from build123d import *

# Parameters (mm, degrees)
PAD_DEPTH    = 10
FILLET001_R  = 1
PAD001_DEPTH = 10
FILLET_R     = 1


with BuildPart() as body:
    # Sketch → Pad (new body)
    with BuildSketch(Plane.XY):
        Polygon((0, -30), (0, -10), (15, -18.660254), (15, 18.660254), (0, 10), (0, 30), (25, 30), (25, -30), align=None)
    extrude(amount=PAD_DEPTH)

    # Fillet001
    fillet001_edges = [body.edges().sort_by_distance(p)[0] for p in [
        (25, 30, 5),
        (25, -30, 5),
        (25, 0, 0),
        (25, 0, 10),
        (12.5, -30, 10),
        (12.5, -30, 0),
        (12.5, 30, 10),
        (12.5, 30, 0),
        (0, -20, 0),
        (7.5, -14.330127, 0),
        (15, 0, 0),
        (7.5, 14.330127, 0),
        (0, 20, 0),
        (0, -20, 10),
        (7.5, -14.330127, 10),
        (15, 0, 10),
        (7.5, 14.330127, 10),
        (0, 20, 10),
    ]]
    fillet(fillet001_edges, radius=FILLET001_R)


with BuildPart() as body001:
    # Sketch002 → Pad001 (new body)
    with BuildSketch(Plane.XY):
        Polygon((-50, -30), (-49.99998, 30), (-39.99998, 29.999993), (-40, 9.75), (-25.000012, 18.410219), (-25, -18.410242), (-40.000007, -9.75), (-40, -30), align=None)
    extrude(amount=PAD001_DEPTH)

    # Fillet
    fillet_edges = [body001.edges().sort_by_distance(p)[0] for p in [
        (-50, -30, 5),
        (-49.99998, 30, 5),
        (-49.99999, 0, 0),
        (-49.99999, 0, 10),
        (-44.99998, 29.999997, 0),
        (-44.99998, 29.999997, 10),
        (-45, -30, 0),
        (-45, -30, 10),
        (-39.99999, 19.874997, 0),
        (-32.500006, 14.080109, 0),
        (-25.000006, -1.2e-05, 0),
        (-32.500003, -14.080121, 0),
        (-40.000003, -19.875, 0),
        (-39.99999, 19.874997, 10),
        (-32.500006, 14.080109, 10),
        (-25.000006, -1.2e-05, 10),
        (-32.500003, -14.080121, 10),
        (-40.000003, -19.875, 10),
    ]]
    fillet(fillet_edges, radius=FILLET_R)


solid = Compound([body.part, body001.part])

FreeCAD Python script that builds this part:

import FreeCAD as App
import Part
import Sketcher

V = App.Vector
Q = App.Units.Quantity


def edges_at(feature, points):
    """Names of the edges that pass closest to the given points."""
    edges = feature.Shape.Edges
    near = lambda p: min(range(len(edges)), key=lambda i: edges[i].distToShape(Part.Vertex(*p))[0])
    return sorted({f"Edge{near(p) + 1}" for p in points})


def add_polygon(sketch, points):
    """Adds a closed chain of lines whose ends are joined by coincident constraints."""
    first, n = sketch.GeometryCount, len(points)
    for a, b in zip(points, points[1:] + points[:1]):
        sketch.addGeometry(Part.LineSegment(App.Vector(*a, 0), App.Vector(*b, 0)), False)
    for i in range(n):
        sketch.addConstraint(Sketcher.Constraint("Coincident", first + i, 2, first + (i + 1) % n, 1))

doc = App.newDocument("Part")
body = doc.addObject("PartDesign::Body", "Body")

# Sketch on XY plane
sketch1 = body.newObject("Sketcher::SketchObject", "Sketch")
sketch1.AttachmentSupport = (doc.getObject("XY_Plane"), [""])
sketch1.MapMode = "FlatFace"
add_polygon(sketch1, [(0, -10), (0, -30), (25, -30), (25, 30), (0, 30), (0, 10), (15, 19), (15, -19)])  # lines 0-7
sketch1.addConstraint([
    Sketcher.Constraint("Vertical", 0),
    Sketcher.Constraint("Horizontal", 1),
    Sketcher.Constraint("Vertical", 2),
    Sketcher.Constraint("Horizontal", 3),
    Sketcher.Constraint("Vertical", 4),
    Sketcher.Constraint("Vertical", 6),
    Sketcher.Constraint("Symmetric", 0, 2, 3, 2, -1, 1),
    Sketcher.Constraint("Symmetric", 4, 2, 7, 2, -1),
    Sketcher.Constraint("Equal", 5, 7),
    Sketcher.Constraint("DistanceX", 1, 1, 1, 2, 25.0),
    Sketcher.Constraint("DistanceY", 0, 2, 0, 1, 20.0),
    Sketcher.Constraint("DistanceY", 2, 1, 2, 2, 60.0),
    Sketcher.Constraint("Angle", 5, Q("30 deg")),
    Sketcher.Constraint("DistanceX", -1, 1, 5, 2, 15.0),
])
pad1 = body.newObject("PartDesign::Pad", "Pad")
pad1.Profile = sketch1
pad1.Length = 10
doc.recompute()

fillet = body.newObject("PartDesign::Fillet", "Fillet")
fillet.Base = (pad1, edges_at(pad1, [
    (25, 30, 5),
    (25, -30, 5),
    (25, 0, 0),
    (25, 0, 10),
    (12.5, -30, 10),
    (12.5, -30, 0),
    (12.5, 30, 10),
    (12.5, 30, 0),
    (0, -20, 0),
    (7.5, -14.33, 0),
    (15, 0, 0),
    (7.5, 14.33, 0),
    (0, 20, 0),
    (0, -20, 10),
    (7.5, -14.33, 10),
    (15, 0, 10),
    (7.5, 14.33, 10),
    (0, 20, 10),
]))
fillet.Radius = 1
body2 = doc.addObject("PartDesign::Body", "Body001")

# Sketch on XY plane
sketch2 = body2.newObject("Sketcher::SketchObject", "Sketch001")
sketch2.AttachmentSupport = (doc.getObject("XY_Plane001"), [""])
sketch2.MapMode = "FlatFace"
add_polygon(sketch2, [(-49.99998, 30), (-50, -30), (-40, -30), (-40.000007, -9.75), (-25, -18.410242), (-25.000012, 18.410219), (-40, 9.75), (-39.99998, 29.999993)])  # lines 0-7
sketch2.addConstraint([
    Sketcher.Constraint("Horizontal", 1),
    Sketcher.Constraint("DistanceX", 1, 1, 1, 2, 10.0),
    Sketcher.Constraint("Distance", 0, 60.0),
    Sketcher.Constraint("Distance", 7, 10.0),
    Sketcher.Constraint("DistanceX", 0, 2, -1, 1, 50.0),
    Sketcher.Constraint("DistanceY", 0, 2, -1, 1, 30.0),
    Sketcher.Constraint("DistanceX", 3, 2, -1, 1, 25.0),
    Sketcher.Constraint("DistanceX", 5, 2, -1, 1, 40.0),
    Sketcher.Constraint("DistanceY", 2, 2, 5, 2, 19.5),
    Sketcher.Constraint("Distance", 2, 20.25),
    Sketcher.Constraint("Distance", 3, 17.320508),
    Sketcher.Constraint("Distance", 4, 36.820461),
    Sketcher.Constraint("Distance", 5, 17.32048),
    Sketcher.Constraint("DistanceY", 3, 2, -1, 1, 18.410242),
    Sketcher.Constraint("DistanceX", 6, 2, -1, 1, 39.99998),
    Sketcher.Constraint("Distance", 6, 20.249993),
])
pad2 = body2.newObject("PartDesign::Pad", "Pad001")
pad2.Profile = sketch2
pad2.Length = 10
doc.recompute()

fillet2 = body2.newObject("PartDesign::Fillet", "Fillet001")
fillet2.Base = (pad2, edges_at(pad2, [
    (-50, -30, 5),
    (-50, 30, 5),
    (-50, 0, 0),
    (-50, 0, 10),
    (-45, 30, 0),
    (-45, 30, 10),
    (-45, -30, 0),
    (-45, -30, 10),
    (-40, 19.875, 0),
    (-32.5, 14.08, 0),
    (-25, 0, 0),
    (-32.5, -14.08, 0),
    (-40, -19.875, 0),
    (-40, 19.875, 10),
    (-32.5, 14.08, 10),
    (-25, 0, 10),
    (-32.5, -14.08, 10),
    (-40, -19.875, 10),
]))
fillet2.Radius = 1

doc.recompute()
